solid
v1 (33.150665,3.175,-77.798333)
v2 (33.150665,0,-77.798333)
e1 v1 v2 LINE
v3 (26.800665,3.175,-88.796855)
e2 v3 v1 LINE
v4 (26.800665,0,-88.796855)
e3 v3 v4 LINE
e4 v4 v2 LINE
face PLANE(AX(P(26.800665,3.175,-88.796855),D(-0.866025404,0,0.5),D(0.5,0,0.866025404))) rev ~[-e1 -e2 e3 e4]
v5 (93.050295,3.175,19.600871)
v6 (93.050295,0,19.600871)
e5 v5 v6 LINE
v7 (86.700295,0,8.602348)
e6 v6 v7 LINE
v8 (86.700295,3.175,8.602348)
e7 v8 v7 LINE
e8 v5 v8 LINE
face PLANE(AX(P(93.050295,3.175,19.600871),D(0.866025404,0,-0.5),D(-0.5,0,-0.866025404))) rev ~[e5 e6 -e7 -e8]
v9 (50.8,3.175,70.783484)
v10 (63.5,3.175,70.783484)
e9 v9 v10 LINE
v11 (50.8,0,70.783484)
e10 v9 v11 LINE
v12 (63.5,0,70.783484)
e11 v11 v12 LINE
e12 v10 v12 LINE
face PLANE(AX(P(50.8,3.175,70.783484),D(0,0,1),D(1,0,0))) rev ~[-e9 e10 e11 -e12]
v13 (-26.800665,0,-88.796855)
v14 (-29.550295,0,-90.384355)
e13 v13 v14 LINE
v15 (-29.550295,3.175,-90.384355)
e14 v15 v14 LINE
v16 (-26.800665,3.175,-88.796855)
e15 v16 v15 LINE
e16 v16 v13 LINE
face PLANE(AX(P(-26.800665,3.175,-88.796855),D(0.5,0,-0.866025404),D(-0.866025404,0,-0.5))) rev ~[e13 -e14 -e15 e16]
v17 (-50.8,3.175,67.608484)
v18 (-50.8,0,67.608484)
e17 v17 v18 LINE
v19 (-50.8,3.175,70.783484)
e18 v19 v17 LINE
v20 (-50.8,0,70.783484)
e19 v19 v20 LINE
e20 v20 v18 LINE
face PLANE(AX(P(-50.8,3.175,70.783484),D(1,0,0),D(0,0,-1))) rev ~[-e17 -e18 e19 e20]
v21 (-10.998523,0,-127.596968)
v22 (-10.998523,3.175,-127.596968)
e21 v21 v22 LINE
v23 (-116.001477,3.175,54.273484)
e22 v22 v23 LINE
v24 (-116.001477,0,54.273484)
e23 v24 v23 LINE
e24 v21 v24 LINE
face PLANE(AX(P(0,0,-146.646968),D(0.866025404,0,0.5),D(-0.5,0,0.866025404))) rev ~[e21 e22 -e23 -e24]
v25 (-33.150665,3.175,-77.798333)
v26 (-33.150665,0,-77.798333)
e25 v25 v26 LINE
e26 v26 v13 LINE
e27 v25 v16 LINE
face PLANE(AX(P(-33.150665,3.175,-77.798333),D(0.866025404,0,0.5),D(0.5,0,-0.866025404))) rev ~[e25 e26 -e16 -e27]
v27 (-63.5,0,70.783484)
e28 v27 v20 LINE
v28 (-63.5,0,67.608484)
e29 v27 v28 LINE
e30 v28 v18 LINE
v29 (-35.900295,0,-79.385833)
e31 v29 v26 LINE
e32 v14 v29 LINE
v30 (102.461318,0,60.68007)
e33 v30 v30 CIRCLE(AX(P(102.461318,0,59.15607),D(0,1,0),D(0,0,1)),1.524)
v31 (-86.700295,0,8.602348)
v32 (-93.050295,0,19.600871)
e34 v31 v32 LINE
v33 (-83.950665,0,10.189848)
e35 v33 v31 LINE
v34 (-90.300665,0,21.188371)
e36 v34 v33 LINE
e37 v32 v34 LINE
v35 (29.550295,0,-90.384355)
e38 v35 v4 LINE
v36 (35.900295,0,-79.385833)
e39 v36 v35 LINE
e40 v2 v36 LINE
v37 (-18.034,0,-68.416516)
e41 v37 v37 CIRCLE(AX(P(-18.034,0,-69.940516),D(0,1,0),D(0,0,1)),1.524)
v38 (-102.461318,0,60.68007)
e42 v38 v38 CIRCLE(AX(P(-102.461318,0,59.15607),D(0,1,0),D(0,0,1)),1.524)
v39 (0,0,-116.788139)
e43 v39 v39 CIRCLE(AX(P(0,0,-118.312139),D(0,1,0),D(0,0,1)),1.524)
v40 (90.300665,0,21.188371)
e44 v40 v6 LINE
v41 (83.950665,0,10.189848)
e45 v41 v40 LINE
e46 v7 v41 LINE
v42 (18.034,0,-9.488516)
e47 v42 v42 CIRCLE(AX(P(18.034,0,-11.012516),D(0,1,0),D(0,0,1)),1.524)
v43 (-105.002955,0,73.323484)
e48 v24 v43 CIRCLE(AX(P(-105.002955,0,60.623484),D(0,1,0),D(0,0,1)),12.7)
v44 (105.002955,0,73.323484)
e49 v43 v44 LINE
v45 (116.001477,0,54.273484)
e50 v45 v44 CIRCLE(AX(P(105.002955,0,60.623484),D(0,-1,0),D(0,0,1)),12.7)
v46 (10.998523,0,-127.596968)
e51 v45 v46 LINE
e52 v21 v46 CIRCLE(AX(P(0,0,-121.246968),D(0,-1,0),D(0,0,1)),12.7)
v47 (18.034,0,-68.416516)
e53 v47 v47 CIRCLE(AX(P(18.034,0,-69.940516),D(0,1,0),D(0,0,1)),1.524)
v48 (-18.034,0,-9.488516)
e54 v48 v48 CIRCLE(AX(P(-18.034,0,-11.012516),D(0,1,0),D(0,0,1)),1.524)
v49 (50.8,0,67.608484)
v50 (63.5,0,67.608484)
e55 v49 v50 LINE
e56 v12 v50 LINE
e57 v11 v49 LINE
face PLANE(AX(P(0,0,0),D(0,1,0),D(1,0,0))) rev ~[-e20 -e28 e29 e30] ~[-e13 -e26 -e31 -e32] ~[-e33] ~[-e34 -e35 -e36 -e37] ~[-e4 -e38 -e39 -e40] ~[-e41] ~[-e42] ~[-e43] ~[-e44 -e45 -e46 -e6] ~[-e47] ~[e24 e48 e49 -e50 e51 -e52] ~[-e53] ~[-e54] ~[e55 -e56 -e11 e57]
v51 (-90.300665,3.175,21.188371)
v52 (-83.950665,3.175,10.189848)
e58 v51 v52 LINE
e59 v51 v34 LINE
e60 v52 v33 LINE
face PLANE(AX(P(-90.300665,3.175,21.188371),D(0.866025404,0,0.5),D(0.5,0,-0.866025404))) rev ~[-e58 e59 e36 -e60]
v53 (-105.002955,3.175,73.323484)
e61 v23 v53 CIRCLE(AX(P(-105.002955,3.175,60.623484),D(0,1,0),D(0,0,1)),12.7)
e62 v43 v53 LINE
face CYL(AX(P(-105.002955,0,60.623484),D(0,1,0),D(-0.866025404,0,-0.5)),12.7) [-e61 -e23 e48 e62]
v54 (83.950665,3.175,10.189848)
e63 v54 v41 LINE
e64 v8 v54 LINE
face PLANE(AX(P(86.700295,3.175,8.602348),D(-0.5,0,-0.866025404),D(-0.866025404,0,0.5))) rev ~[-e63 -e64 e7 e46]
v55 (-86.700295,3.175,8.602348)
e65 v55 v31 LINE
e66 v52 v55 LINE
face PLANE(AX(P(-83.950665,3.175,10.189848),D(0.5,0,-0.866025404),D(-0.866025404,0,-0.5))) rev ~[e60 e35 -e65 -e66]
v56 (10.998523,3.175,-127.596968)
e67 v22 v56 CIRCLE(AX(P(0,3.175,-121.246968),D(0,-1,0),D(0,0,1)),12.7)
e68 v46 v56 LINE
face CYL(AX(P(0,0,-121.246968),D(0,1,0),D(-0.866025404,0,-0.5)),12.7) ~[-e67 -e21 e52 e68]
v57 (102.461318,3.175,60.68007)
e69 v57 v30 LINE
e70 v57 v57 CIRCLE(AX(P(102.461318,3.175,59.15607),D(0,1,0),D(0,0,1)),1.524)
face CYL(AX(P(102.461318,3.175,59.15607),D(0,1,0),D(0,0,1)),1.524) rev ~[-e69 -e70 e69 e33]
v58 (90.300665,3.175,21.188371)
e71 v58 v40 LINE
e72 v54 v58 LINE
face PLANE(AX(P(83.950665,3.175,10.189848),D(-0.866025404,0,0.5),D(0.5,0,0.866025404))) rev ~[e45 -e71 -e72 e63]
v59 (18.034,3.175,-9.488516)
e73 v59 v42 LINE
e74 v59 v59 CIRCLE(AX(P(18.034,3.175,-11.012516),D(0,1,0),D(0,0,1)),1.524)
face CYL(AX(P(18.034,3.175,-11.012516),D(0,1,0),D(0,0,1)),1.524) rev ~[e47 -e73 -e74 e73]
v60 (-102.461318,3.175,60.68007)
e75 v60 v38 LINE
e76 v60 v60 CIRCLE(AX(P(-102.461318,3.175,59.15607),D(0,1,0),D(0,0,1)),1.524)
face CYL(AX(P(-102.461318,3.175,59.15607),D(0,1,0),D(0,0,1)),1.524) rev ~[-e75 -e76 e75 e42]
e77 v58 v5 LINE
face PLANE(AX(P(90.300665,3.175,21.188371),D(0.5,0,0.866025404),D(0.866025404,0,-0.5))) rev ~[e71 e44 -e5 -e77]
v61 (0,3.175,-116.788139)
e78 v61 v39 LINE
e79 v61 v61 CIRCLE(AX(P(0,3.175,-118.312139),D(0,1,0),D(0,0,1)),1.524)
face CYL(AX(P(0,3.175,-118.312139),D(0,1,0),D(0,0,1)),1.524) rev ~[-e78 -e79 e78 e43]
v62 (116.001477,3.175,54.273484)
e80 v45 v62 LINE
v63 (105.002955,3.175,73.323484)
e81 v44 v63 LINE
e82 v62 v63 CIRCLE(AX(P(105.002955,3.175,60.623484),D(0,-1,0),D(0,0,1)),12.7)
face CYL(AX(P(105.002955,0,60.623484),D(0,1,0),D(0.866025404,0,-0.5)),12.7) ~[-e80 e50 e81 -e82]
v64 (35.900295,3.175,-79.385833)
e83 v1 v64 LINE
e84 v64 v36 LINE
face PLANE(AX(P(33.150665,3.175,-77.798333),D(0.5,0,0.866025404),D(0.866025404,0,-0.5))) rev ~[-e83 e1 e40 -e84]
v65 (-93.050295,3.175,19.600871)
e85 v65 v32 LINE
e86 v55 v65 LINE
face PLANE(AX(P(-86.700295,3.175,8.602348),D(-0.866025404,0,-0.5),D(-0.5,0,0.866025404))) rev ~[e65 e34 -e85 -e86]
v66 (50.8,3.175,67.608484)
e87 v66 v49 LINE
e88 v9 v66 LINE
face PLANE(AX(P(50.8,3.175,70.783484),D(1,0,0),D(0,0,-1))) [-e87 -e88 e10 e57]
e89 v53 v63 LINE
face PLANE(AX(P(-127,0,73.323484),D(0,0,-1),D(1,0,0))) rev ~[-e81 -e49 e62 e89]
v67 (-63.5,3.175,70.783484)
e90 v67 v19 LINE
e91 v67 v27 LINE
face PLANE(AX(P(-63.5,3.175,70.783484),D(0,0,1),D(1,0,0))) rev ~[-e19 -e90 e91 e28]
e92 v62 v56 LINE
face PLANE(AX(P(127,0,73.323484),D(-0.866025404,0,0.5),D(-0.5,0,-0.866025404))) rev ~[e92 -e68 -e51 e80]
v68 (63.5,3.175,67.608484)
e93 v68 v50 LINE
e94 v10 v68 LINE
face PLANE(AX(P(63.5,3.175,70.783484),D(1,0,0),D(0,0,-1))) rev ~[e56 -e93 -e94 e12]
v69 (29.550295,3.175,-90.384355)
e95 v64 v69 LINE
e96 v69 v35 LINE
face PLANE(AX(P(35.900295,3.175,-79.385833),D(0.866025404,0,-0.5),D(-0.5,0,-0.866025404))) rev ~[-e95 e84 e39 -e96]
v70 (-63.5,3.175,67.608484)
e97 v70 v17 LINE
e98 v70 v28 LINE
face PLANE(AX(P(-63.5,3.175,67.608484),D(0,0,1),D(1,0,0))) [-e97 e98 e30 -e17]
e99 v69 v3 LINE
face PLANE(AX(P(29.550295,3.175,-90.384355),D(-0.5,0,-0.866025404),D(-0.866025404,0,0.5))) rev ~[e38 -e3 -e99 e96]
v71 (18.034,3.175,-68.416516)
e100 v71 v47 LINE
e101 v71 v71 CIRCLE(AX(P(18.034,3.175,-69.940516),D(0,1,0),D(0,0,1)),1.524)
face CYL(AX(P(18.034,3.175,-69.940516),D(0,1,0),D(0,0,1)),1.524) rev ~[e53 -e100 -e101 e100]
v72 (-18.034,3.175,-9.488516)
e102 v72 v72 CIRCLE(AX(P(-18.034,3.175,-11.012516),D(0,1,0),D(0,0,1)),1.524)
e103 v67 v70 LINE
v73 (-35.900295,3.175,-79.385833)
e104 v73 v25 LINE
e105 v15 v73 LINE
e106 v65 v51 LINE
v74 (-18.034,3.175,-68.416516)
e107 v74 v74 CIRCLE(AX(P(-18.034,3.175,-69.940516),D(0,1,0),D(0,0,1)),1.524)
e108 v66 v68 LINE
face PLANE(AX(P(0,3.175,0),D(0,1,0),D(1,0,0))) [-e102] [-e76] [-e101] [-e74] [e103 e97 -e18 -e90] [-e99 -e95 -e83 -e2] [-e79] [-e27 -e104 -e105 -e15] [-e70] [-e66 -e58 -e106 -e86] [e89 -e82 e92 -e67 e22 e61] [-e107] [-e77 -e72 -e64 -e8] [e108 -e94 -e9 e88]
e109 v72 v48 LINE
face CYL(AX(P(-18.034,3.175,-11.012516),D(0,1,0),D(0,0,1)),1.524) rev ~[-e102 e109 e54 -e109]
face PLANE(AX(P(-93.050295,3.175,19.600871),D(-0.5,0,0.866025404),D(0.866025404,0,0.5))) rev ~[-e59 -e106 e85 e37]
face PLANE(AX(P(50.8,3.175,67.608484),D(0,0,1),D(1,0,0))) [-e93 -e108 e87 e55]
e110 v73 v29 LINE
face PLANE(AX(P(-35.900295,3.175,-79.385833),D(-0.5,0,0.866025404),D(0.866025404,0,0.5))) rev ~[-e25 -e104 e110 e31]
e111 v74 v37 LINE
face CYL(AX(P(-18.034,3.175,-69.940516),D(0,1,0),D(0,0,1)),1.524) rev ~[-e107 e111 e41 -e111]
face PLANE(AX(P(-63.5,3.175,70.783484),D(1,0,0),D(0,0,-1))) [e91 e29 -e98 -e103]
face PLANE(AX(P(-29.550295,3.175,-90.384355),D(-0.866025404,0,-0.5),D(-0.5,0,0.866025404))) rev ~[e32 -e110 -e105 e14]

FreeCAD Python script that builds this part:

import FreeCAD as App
import Part
import Sketcher

V = App.Vector
Q = App.Units.Quantity


def edges_at(feature, points):
    """Names of the edges that pass closest to the given points."""
    edges = feature.Shape.Edges
    near = lambda p: min(range(len(edges)), key=lambda i: edges[i].distToShape(Part.Vertex(*p))[0])
    return sorted({f"Edge{near(p) + 1}" for p in points})


def add_polygon(sketch, points):
    """Adds a closed chain of lines whose ends are joined by coincident constraints."""
    first, n = sketch.GeometryCount, len(points)
    for a, b in zip(points, points[1:] + points[:1]):
        sketch.addGeometry(Part.LineSegment(App.Vector(*a, 0), App.Vector(*b, 0)), False)
    for i in range(n):
        sketch.addConstraint(Sketcher.Constraint("Coincident", first + i, 2, first + (i + 1) % n, 1))

doc = App.newDocument("Part")
body = doc.addObject("PartDesign::Body", "Body")

# Sketch on XZ plane
sketch1 = body.newObject("Sketcher::SketchObject", "Sketch")
sketch1.AttachmentSupport = (doc.getObject("XZ_Plane"), [""])
sketch1.MapMode = "FlatFace"
add_polygon(sketch1, [(0, -147), (-127, 73), (127, 73)])  # lines 0-2
sketch1.addConstraint(Sketcher.Constraint("Horizontal", 1))
sketch1.addConstraint(Sketcher.Constraint("PointOnObject", 2, 2, -2))
sketch1.addConstraint(Sketcher.Constraint("Equal", 0, 2))
sketch1.addConstraint(Sketcher.Constraint("DistanceX", 1, 1, 1, 2, Q("10 in")))
sketch1.addConstraint(Sketcher.Constraint("Distance", 0, Q("10 in")))
sketch1.addConstraint(Sketcher.Constraint("DistanceY", 2, 2, -1, 1, 146.646968))
pad1 = body.newObject("PartDesign::Pad", "Pad")
pad1.Profile = sketch1
pad1.Length = Q("0.125 in")
pad1.Reversed = True

# Sketch on XZ plane
sketch2 = body.newObject("Sketcher::SketchObject", "Sketch001")
sketch2.AttachmentSupport = (doc.getObject("XZ_Plane"), [""])
sketch2.MapMode = "FlatFace"
sketch2.AttachmentOffset = App.Placement(V(0, 0, -0.125 * 25.4), App.Rotation())
sketch2.addGeometry(Part.Circle(V(0, -118.3, 0), V(0, 0, 1), 1.5), False)
sketch2.addGeometry(Part.Circle(V(-102.5, 59.2, 0), V(0, 0, 1), 1.5), False)
sketch2.addGeometry(Part.Circle(V(102.5, 59.2, 0), V(0, 0, 1), 1.5), False)
sketch2.addConstraint(Sketcher.Constraint("Equal", 0, 1))
sketch2.addConstraint(Sketcher.Constraint("Equal", 1, 2))
sketch2.addConstraint(Sketcher.Constraint("Symmetric", 1, 3, 2, 3, -2))
sketch2.addConstraint(Sketcher.Constraint("PointOnObject", 0, 3, -2))
sketch2.addConstraint(Sketcher.Constraint("Diameter", 0, Q("0.12 in")))
sketch2.addConstraint(Sketcher.Constraint("DistanceY", 0, 3, -1, 1, 118.312139))
sketch2.addConstraint(Sketcher.Constraint("DistanceX", 1, 3, -1, 1, 102.461318))
sketch2.addConstraint(Sketcher.Constraint("DistanceY", -1, 1, 1, 3, 59.15607))
pocket1 = body.newObject("PartDesign::Pocket", "Pocket")
pocket1.Profile = sketch2
pocket1.Type = "ThroughAll"
pocket1.Reversed = True
doc.recompute()

fillet = body.newObject("PartDesign::Fillet", "Fillet")
fillet.Base = (pocket1, edges_at(pocket1, [(127, 1.587, 73.323), (-127, 1.587, 73.323), (0, 1.587, -146.647)]))
fillet.Radius = Q("0.5 in")

# Sketch on XZ plane
sketch3 = body.newObject("Sketcher::SketchObject", "Sketch002")
sketch3.AttachmentSupport = (doc.getObject("XZ_Plane"), [""])
sketch3.MapMode = "FlatFace"
sketch3.AttachmentOffset = App.Placement(V(0, 0, -0.125 * 25.4), App.Rotation())
add_polygon(sketch3, [(-29.6, -90.4), (-35.9, -79.4), (-33.2, -77.8), (-26.8, -88.8)])  # lines 0-3
add_polygon(sketch3, [(-84, 10.2), (-86.7, 8.6), (-93.1, 19.6), (-90.3, 21.2)])  # lines 4-7
add_polygon(sketch3, [(-63.5, 67.6), (-63.5, 70.8), (-50.8, 70.8), (-50.8, 67.6)])  # lines 8-11
add_polygon(sketch3, [(50.8, 67.6), (50.8, 70.8), (63.5, 70.8), (63.5, 67.6)])  # lines 12-15
add_polygon(sketch3, [(93.1, 19.6), (86.7, 8.6), (84, 10.2), (90.3, 21.2)])  # lines 16-19
add_polygon(sketch3, [(33.2, -77.8), (35.9, -79.4), (29.6, -90.4), (26.8, -88.8)])  # lines 20-23
sketch3.addConstraint(Sketcher.Constraint("Vertical", 8))
sketch3.addConstraint(Sketcher.Constraint("Horizontal", 9))
sketch3.addConstraint(Sketcher.Constraint("Vertical", 10))
sketch3.addConstraint(Sketcher.Constraint("Horizontal", 11))
sketch3.addConstraint(Sketcher.Constraint("Vertical", 12))
sketch3.addConstraint(Sketcher.Constraint("Horizontal", 13))
sketch3.addConstraint(Sketcher.Constraint("Vertical", 14))
sketch3.addConstraint(Sketcher.Constraint("Horizontal", 15))
sketch3.addConstraint(Sketcher.Constraint("Symmetric", 9, 2, 12, 2, -2))
sketch3.addConstraint(Sketcher.Constraint("Symmetric", 11, 2, 14, 2, -2))
sketch3.addConstraint(Sketcher.Constraint("Symmetric", 4, 2, 16, 2, -2))
sketch3.addConstraint(Sketcher.Constraint("Symmetric", 7, 2, 17, 2, -2))
sketch3.addConstraint(Sketcher.Constraint("Symmetric", 6, 2, 18, 2, -2))
sketch3.addConstraint(Sketcher.Constraint("Symmetric", 5, 2, 19, 2, -2))
sketch3.addConstraint(Sketcher.Constraint("Symmetric", 0, 2, 20, 2, -2))
sketch3.addConstraint(Sketcher.Constraint("Symmetric", 3, 2, 21, 2, -2))
sketch3.addConstraint(Sketcher.Constraint("Symmetric", 2, 2, 22, 2, -2))
sketch3.addConstraint(Sketcher.Constraint("Symmetric", 1, 2, 23, 2, -2))
sketch3.addConstraint(Sketcher.Constraint("Perpendicular", 0, 1))
sketch3.addConstraint(Sketcher.Constraint("Perpendicular", 1, 2))
sketch3.addConstraint(Sketcher.Constraint("Perpendicular", 2, 3))
sketch3.addConstraint(Sketcher.Constraint("Parallel", 3, 4))
sketch3.addConstraint(Sketcher.Constraint("Perpendicular", 4, 5))
sketch3.addConstraint(Sketcher.Constraint("Perpendicular", 5, 6))
sketch3.addConstraint(Sketcher.Constraint("Perpendicular", 6, 7))
sketch3.addConstraint(Sketcher.Constraint("Equal", 3, 4))
sketch3.addConstraint(Sketcher.Constraint("Equal", 2, 5))
sketch3.addConstraint(Sketcher.Constraint("DistanceX", 9, 1, 9, 2, Q("0.5 in")))
sketch3.addConstraint(Sketcher.Constraint("DistanceX", 9, 2, -1, 1, Q("2 in")))
sketch3.addConstraint(Sketcher.Constraint("Angle", 0, Q("120 deg")))
sketch3.addConstraint(Sketcher.Constraint("DistanceX", 4, 2, 0, 2, Q("2 in")))
sketch3.addConstraint(Sketcher.Constraint("Distance", 0, Q("0.5 in")))
sketch3.addConstraint(Sketcher.Constraint("DistanceY", 8, 1, 8, 2, Q("0.125 in")))
sketch3.addConstraint(Sketcher.Constraint("Distance", 1, Q("0.125 in")))
sketch3.addConstraint(Sketcher.Constraint("DistanceY", -1, 1, 4, 2, 8.602348))
sketch3.addConstraint(Sketcher.Constraint("DistanceY", 0, 2, 4, 2, 87.988181))
sketch3.addConstraint(Sketcher.Constraint("DistanceX", 1, 2, 16, 2, 119.85096))
sketch3.addConstraint(Sketcher.Constraint("DistanceY", -1, 1, 8, 2, 70.783484))
pocket2 = body.newObject("PartDesign::Pocket", "Pocket001")
pocket2.Profile = sketch3
pocket2.Type = "ThroughAll"
pocket2.Reversed = True

# Sketch on XZ plane
sketch4 = body.newObject("Sketcher::SketchObject", "Sketch003")
sketch4.AttachmentSupport = (doc.getObject("XZ_Plane"), [""])
sketch4.MapMode = "FlatFace"
sketch4.AttachmentOffset = App.Placement(V(0, 0, -0.125 * 25.4), App.Rotation())
sketch4.addGeometry(Part.Circle(V(-18, -69.9, 0), V(0, 0, 1), 1.5), False)
sketch4.addGeometry(Part.Circle(V(18, -69.9, 0), V(0, 0, 1), 1.5), False)
sketch4.addGeometry(Part.Circle(V(-18, -11, 0), V(0, 0, 1), 1.5), False)
sketch4.addGeometry(Part.Circle(V(18, -11, 0), V(0, 0, 1), 1.5), False)
sketch4.addConstraint(Sketcher.Constraint("Equal", 0, 1))
sketch4.addConstraint(Sketcher.Constraint("Equal", 1, 2))
sketch4.addConstraint(Sketcher.Constraint("Equal", 2, 3))
sketch4.addConstraint(Sketcher.Constraint("Symmetric", 0, 3, 1, 3, -2))
sketch4.addConstraint(Sketcher.Constraint("Symmetric", 2, 3, 3, 3, -2))
sketch4.addConstraint(Sketcher.Constraint("Vertical", 0, 3, 2, 3))
sketch4.addConstraint(Sketcher.Constraint("Diameter", 0, Q("0.12 in")))
sketch4.addConstraint(Sketcher.Constraint("DistanceX", 0, 3, -1, 1, Q("0.71 in")))
sketch4.addConstraint(Sketcher.Constraint("DistanceY", 0, 3, 2, 3, Q("2.32 in")))
sketch4.addConstraint(Sketcher.Constraint("DistanceY", 0, 3, -1, 1, 69.940516))
pocket3 = body.newObject("PartDesign::Pocket", "Pocket002")
pocket3.Profile = sketch4
pocket3.Type = "ThroughAll"
pocket3.Reversed = True

doc.recompute()
